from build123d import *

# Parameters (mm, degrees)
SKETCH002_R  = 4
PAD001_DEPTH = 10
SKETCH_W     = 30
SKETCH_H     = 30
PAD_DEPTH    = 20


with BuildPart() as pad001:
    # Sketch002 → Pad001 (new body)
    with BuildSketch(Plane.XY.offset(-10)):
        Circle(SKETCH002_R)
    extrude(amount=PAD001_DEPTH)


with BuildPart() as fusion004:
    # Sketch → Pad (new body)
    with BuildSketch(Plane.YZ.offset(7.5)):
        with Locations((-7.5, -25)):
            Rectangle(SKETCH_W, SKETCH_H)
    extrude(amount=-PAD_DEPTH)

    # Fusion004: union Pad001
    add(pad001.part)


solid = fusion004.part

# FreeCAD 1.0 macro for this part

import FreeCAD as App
import Part
import Sketcher

V = App.Vector
Q = App.Units.Quantity


def add_polygon(sketch, points):
    """Adds a closed chain of lines whose ends are joined by coincident constraints."""
    first, n = sketch.GeometryCount, len(points)
    for a, b in zip(points, points[1:] + points[:1]):
        sketch.addGeometry(Part.LineSegment(App.Vector(*a, 0), App.Vector(*b, 0)), False)
    for i in range(n):
        sketch.addConstraint(Sketcher.Constraint("Coincident", first + i, 2, first + (i + 1) % n, 1))

doc = App.newDocument("Part")
body = doc.addObject("PartDesign::Body", "Body")

sketch1 = body.newObject("Sketcher::SketchObject", "Sketch")
sketch1.AttachmentSupport = (doc.getObject("XY_Plane"), [""])
sketch1.MapMode = "FlatFace"
sketch1.AttachmentOffset = App.Placement(V(0, 0, -10), App.Rotation())
sketch1.addGeometry(Part.Circle(V(0, 0, 0), V(0, 0, 1), 4), False)
sketch1.addConstraint([
    Sketcher.Constraint("Coincident", 0, 3, -1, 1),
    Sketcher.Constraint("Diameter", 0, Q("8 mm")),
])
pad1 = body.newObject("PartDesign::Pad", "Pad")
pad1.Profile = sketch1
pad1.Length = 10
body2 = doc.addObject("PartDesign::Body", "Body001")

sketch2 = body2.newObject("Sketcher::SketchObject", "Sketch001")
sketch2.AttachmentSupport = (doc.getObject("YZ_Plane001"), [""])
sketch2.MapMode = "FlatFace"
sketch2.AttachmentOffset = App.Placement(V(0, 0, 7.5), App.Rotation())
add_polygon(sketch2, [(-22, -10), (-22, -40), (8, -40), (8, -10)])
sketch2.addConstraint([
    Sketcher.Constraint("Vertical", 0),
    Sketcher.Constraint("Horizontal", 1),
    Sketcher.Constraint("Vertical", 2),
    Sketcher.Constraint("Horizontal", 3),
    Sketcher.Constraint("Equal", 3, 0),
    Sketcher.Constraint("DistanceX", 1, 1, 1, 2, Q("30 mm")),
    Sketcher.Constraint("DistanceY", 0, 2, -1, 1, Q("40 mm")),
    Sketcher.Constraint("DistanceX", 0, 2, -1, 1, Q("22.5 mm")),
])
pad2 = body2.newObject("PartDesign::Pad", "Pad001")
pad2.Profile = sketch2
pad2.Length = 20
pad2.Reversed = True
doc.recompute()

boolean = body2.newObject("PartDesign::Boolean", "Boolean")
boolean.Type = "Fuse"
boolean.addObjects([body])

doc.recompute()
